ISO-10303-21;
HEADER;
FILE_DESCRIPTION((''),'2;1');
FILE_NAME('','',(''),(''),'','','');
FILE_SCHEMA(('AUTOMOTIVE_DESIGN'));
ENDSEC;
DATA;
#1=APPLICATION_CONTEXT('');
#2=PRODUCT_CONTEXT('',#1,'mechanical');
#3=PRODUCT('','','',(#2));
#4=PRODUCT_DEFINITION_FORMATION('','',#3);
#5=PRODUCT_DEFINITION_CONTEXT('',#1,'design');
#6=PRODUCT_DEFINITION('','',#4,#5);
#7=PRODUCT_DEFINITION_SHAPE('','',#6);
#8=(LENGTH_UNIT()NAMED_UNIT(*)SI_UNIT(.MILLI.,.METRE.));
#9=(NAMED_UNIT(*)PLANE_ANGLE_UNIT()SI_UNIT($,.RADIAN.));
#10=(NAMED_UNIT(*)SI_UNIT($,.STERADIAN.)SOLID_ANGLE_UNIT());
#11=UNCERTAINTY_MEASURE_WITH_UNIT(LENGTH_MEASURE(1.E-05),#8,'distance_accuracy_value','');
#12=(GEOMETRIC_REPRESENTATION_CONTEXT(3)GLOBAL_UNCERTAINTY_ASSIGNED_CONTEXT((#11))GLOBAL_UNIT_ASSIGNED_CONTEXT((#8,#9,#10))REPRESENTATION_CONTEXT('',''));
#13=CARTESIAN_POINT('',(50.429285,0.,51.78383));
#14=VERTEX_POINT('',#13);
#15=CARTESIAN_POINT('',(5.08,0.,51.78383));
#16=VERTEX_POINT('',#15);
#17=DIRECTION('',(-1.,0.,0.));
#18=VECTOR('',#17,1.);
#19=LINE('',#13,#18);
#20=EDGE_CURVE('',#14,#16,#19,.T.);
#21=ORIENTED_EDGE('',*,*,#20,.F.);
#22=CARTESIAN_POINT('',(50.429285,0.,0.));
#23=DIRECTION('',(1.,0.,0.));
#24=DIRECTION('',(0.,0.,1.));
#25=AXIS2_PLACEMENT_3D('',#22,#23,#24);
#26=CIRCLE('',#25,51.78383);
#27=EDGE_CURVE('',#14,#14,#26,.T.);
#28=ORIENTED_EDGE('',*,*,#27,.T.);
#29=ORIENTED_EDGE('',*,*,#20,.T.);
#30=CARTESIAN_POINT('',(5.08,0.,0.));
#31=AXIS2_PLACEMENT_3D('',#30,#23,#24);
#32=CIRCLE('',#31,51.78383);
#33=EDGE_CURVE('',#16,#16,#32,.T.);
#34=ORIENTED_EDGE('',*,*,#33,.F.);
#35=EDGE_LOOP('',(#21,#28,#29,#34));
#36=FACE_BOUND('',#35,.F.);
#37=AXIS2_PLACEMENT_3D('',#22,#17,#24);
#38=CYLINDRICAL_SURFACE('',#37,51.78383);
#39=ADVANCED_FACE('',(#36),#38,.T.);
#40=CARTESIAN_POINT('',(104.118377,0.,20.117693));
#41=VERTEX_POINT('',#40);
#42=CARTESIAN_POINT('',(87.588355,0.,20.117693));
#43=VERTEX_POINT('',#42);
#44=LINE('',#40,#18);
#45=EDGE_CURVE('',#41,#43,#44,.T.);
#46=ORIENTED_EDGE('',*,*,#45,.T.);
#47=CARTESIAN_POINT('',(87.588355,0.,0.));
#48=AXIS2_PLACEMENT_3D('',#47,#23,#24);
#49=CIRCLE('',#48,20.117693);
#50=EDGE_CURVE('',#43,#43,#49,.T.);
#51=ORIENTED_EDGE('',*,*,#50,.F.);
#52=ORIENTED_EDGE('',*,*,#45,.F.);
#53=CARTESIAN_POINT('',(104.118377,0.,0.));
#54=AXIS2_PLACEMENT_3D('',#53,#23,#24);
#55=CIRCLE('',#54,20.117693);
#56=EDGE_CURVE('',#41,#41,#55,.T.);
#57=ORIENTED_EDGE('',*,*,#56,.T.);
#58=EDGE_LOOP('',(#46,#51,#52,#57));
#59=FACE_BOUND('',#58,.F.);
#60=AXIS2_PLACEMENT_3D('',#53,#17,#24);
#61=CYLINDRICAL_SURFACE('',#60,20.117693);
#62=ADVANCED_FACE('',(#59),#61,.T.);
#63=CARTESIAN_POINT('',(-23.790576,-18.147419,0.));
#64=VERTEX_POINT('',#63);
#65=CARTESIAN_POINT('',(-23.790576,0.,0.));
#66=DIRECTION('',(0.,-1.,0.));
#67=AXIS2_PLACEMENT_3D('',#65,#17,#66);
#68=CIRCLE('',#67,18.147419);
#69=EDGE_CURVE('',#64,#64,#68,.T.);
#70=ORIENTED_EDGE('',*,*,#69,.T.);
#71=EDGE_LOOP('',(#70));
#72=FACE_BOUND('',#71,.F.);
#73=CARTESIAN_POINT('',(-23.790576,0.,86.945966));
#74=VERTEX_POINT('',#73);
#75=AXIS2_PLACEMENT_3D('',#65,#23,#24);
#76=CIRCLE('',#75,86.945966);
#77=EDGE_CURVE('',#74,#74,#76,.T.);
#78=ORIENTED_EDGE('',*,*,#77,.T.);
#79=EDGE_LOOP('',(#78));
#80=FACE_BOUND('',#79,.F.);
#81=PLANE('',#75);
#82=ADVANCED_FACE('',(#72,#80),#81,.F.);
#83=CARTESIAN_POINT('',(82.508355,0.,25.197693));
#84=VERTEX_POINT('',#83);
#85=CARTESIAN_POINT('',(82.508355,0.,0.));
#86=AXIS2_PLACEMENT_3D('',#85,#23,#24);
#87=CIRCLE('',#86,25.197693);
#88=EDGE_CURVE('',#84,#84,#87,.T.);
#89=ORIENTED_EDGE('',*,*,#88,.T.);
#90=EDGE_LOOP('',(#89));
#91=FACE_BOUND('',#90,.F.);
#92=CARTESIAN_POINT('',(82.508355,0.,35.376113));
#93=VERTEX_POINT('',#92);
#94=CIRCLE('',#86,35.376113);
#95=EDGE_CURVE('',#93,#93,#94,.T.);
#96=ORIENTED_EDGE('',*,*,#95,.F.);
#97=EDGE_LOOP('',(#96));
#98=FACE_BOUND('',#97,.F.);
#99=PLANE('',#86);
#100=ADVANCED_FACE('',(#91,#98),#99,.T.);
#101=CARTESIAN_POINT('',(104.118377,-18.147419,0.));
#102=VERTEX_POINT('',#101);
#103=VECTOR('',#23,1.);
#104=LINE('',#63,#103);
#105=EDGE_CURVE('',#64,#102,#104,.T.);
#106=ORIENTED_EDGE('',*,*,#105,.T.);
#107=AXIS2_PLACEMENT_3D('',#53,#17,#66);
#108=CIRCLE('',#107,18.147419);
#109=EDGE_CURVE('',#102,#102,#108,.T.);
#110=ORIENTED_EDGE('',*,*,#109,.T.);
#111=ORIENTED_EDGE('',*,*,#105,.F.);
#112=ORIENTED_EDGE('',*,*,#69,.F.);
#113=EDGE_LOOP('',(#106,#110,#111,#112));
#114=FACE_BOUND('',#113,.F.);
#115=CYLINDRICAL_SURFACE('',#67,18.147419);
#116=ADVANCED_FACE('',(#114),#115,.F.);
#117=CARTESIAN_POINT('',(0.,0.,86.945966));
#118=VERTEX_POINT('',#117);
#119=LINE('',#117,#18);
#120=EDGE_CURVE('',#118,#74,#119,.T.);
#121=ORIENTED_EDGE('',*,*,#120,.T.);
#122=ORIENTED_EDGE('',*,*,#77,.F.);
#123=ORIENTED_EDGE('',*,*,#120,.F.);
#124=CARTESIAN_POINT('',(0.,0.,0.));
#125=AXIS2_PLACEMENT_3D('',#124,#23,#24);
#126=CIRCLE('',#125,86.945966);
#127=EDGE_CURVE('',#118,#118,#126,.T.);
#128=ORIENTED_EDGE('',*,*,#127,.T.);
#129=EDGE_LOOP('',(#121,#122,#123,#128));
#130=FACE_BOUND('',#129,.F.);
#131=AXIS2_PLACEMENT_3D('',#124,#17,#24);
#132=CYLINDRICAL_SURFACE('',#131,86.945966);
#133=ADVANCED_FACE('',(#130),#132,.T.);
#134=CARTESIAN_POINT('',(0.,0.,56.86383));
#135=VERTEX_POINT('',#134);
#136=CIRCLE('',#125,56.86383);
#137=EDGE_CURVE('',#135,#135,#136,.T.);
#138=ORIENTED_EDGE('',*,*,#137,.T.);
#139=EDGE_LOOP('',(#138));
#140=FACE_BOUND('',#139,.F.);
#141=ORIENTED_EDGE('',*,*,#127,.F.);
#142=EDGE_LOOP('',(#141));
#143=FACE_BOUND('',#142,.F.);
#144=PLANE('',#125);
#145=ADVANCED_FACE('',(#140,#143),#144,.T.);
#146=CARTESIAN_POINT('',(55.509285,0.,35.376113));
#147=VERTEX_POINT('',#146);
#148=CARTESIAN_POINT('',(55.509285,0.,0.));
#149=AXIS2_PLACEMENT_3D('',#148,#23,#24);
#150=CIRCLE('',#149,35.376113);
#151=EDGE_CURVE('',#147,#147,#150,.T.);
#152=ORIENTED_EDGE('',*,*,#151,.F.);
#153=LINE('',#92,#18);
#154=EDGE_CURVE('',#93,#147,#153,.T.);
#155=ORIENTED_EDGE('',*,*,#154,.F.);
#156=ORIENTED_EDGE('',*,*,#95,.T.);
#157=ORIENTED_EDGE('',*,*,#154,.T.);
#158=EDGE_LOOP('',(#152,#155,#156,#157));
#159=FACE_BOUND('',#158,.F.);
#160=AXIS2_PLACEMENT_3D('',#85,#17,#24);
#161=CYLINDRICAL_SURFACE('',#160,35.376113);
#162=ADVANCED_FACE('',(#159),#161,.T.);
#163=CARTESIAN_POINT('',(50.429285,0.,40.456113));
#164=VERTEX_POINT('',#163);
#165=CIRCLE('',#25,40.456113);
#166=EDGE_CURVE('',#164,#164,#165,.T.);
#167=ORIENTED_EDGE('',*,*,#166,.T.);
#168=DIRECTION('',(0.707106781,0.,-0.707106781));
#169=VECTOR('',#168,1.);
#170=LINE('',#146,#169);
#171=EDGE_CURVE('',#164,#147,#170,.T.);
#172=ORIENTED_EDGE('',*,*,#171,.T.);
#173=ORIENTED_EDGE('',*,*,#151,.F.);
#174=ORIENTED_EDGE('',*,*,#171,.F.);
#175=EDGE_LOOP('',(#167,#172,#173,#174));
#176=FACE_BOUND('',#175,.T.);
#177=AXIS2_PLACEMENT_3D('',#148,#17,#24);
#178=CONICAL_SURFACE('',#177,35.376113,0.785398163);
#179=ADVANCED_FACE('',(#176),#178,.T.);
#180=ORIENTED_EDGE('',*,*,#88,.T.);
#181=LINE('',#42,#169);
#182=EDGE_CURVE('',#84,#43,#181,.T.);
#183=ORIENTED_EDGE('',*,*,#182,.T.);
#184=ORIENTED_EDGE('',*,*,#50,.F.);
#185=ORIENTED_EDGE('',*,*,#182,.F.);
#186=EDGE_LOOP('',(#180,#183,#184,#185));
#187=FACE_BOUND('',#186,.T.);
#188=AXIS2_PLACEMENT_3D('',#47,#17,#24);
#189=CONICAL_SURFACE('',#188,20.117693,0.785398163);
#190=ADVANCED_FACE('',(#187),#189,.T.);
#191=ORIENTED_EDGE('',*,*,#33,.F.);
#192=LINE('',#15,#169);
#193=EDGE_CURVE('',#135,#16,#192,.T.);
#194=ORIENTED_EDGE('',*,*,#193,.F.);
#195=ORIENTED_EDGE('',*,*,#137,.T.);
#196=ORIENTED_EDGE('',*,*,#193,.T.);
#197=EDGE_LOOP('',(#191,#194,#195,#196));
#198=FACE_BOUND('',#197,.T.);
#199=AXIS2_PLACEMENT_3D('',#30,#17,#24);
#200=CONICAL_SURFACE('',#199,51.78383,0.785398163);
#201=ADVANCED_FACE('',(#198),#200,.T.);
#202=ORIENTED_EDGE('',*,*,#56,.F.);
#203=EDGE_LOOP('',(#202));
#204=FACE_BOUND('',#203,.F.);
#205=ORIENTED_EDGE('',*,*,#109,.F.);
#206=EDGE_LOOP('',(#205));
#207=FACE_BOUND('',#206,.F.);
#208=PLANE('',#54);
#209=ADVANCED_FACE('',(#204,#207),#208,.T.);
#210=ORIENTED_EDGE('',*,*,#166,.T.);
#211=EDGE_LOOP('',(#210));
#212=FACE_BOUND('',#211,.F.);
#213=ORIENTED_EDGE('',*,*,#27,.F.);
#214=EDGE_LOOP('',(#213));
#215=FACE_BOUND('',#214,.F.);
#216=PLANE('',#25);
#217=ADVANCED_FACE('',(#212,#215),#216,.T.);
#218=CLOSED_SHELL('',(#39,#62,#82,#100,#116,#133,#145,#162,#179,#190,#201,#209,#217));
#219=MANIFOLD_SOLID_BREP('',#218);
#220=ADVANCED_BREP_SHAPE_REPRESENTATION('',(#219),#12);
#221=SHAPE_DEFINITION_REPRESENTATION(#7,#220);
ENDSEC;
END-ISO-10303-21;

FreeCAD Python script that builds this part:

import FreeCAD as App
import Part
import Sketcher
from FreeCAD import Vector
Q = App.Units.Quantity


def edges_at(feature, points):
    """Names of the edges that pass closest to the given points."""
    edges = feature.Shape.Edges
    near = lambda p: min(range(len(edges)), key=lambda i: edges[i].distToShape(Part.Vertex(*p))[0])
    return sorted({f"Edge{near(p) + 1}" for p in points})

doc = App.newDocument("Part")
body = doc.addObject("PartDesign::Body", "Body")

# Sketch on XZ plane
sketch1 = body.newObject("Sketcher::SketchObject", "Sketch")
sketch1.AttachmentSupport = (doc.getObject("XZ_Plane"), [""])
sketch1.MapMode = "FlatFace"
sketch1.addGeometry([
    Part.LineSegment(Vector(0, 51.78383, 0), Vector(0, 86.945966, 0)),  # 0
    Part.LineSegment(Vector(0, 86.945966, 0), Vector(-23.790576, 86.945966, 0)),  # 1
    Part.LineSegment(Vector(-23.790576, 86.945966, 0), Vector(-23.790576, 0, 0)),  # 2
    Part.LineSegment(Vector(-23.790576, 0, 0), Vector(104.118377, 0, 0)),  # 3
    Part.LineSegment(Vector(104.118377, 0, 0), Vector(104.118377, 20.117693, 0)),  # 4
    Part.LineSegment(Vector(104.118377, 20.117693, 0), Vector(82.508355, 20.117693, 0)),  # 5
    Part.LineSegment(Vector(82.508355, 20.117693, 0), Vector(82.508355, 35.376113, 0)),  # 6
    Part.LineSegment(Vector(82.508355, 35.376113, 0), Vector(50.429285, 35.376113, 0)),  # 7
    Part.LineSegment(Vector(50.429285, 35.376113, 0), Vector(50.429285, 51.78383, 0)),  # 8
    Part.LineSegment(Vector(50.429285, 51.78383, 0), Vector(0, 51.78383, 0)),  # 9
], False)
sketch1.addConstraint([
    Sketcher.Constraint("Coincident", 0, 2, 1, 1),
    Sketcher.Constraint("Coincident", 1, 2, 2, 1),
    Sketcher.Constraint("Coincident", 2, 2, 3, 1),
    Sketcher.Constraint("Coincident", 3, 2, 4, 1),
    Sketcher.Constraint("Coincident", 4, 2, 5, 1),
    Sketcher.Constraint("Coincident", 5, 2, 6, 1),
    Sketcher.Constraint("Coincident", 6, 2, 7, 1),
    Sketcher.Constraint("Coincident", 7, 2, 8, 1),
    Sketcher.Constraint("Coincident", 8, 2, 9, 1),
    Sketcher.Constraint("Coincident", 9, 2, 0, 1),
    Sketcher.Constraint("Vertical", 0),
    Sketcher.Constraint("Horizontal", 1),
    Sketcher.Constraint("Vertical", 2),
    Sketcher.Constraint("Horizontal", 3),
    Sketcher.Constraint("Vertical", 4),
    Sketcher.Constraint("Horizontal", 5),
    Sketcher.Constraint("Vertical", 6),
    Sketcher.Constraint("Horizontal", 7),
    Sketcher.Constraint("Vertical", 8),
    Sketcher.Constraint("Horizontal", 9),
    Sketcher.Constraint("PointOnObject", 0, 2, -2),
    Sketcher.Constraint("PointOnObject", 2, 2, -1),
    Sketcher.Constraint("DistanceX", 7, 2, 7, 1, Q("32.07907 mm")),
    Sketcher.Constraint("DistanceY", 6, 1, 6, 2, Q("15.25842 mm")),
    Sketcher.Constraint("DistanceX", 1, 2, 1, 1, Q("23.790576 mm")),
    Sketcher.Constraint("DistanceX", 3, 1, 3, 2, Q("127.908953 mm")),
    Sketcher.Constraint("DistanceX", 5, 2, 5, 1, Q("21.610022 mm")),
    Sketcher.Constraint("DistanceY", 0, 1, 0, 2, Q("35.162136 mm")),
    Sketcher.Constraint("DistanceY", 2, 2, 2, 1, Q("86.945966 mm")),
    Sketcher.Constraint("DistanceY", 4, 1, 4, 2, Q("20.117693 mm")),
])
revolution = body.newObject("PartDesign::Revolution", "Revolution")
revolution.Profile = sketch1
revolution.ReferenceAxis = (sketch1, ["H_Axis"])
revolution.Angle = 360
doc.recompute()

chamfer = body.newObject("PartDesign::Chamfer", "Chamfer")
chamfer.Base = (revolution, edges_at(revolution, [(0, 0, -51.784)]))
chamfer.Size = Q("0.2 in")
doc.recompute()

chamfer2 = body.newObject("PartDesign::Chamfer", "Chamfer001")
chamfer2.Base = (chamfer, edges_at(chamfer, [(50.429, 0, -35.376), (82.508, 0, -20.118)]))
chamfer2.Size = Q("0.2 in")

# Sketch on YZ plane
sketch2 = body.newObject("Sketcher::SketchObject", "Sketch001")
sketch2.AttachmentSupport = (doc.getObject("YZ_Plane"), [""])
sketch2.MapMode = "FlatFace"
sketch2.AttachmentOffset = App.Placement(Vector(0, 0, -23.790576), App.Rotation())
sketch2.addGeometry(Part.Circle(Vector(0, 0, 0), Vector(0, 0, 1), 18.147419), False)
sketch2.addConstraint([
    Sketcher.Constraint("Coincident", 0, 3, -1, 1),
    Sketcher.Constraint("Diameter", 0, Q("36.294838 mm")),
])
pocket1 = body.newObject("PartDesign::Pocket", "Pocket")
pocket1.Profile = sketch2
pocket1.Type = "ThroughAll"
pocket1.Reversed = True

doc.recompute()
